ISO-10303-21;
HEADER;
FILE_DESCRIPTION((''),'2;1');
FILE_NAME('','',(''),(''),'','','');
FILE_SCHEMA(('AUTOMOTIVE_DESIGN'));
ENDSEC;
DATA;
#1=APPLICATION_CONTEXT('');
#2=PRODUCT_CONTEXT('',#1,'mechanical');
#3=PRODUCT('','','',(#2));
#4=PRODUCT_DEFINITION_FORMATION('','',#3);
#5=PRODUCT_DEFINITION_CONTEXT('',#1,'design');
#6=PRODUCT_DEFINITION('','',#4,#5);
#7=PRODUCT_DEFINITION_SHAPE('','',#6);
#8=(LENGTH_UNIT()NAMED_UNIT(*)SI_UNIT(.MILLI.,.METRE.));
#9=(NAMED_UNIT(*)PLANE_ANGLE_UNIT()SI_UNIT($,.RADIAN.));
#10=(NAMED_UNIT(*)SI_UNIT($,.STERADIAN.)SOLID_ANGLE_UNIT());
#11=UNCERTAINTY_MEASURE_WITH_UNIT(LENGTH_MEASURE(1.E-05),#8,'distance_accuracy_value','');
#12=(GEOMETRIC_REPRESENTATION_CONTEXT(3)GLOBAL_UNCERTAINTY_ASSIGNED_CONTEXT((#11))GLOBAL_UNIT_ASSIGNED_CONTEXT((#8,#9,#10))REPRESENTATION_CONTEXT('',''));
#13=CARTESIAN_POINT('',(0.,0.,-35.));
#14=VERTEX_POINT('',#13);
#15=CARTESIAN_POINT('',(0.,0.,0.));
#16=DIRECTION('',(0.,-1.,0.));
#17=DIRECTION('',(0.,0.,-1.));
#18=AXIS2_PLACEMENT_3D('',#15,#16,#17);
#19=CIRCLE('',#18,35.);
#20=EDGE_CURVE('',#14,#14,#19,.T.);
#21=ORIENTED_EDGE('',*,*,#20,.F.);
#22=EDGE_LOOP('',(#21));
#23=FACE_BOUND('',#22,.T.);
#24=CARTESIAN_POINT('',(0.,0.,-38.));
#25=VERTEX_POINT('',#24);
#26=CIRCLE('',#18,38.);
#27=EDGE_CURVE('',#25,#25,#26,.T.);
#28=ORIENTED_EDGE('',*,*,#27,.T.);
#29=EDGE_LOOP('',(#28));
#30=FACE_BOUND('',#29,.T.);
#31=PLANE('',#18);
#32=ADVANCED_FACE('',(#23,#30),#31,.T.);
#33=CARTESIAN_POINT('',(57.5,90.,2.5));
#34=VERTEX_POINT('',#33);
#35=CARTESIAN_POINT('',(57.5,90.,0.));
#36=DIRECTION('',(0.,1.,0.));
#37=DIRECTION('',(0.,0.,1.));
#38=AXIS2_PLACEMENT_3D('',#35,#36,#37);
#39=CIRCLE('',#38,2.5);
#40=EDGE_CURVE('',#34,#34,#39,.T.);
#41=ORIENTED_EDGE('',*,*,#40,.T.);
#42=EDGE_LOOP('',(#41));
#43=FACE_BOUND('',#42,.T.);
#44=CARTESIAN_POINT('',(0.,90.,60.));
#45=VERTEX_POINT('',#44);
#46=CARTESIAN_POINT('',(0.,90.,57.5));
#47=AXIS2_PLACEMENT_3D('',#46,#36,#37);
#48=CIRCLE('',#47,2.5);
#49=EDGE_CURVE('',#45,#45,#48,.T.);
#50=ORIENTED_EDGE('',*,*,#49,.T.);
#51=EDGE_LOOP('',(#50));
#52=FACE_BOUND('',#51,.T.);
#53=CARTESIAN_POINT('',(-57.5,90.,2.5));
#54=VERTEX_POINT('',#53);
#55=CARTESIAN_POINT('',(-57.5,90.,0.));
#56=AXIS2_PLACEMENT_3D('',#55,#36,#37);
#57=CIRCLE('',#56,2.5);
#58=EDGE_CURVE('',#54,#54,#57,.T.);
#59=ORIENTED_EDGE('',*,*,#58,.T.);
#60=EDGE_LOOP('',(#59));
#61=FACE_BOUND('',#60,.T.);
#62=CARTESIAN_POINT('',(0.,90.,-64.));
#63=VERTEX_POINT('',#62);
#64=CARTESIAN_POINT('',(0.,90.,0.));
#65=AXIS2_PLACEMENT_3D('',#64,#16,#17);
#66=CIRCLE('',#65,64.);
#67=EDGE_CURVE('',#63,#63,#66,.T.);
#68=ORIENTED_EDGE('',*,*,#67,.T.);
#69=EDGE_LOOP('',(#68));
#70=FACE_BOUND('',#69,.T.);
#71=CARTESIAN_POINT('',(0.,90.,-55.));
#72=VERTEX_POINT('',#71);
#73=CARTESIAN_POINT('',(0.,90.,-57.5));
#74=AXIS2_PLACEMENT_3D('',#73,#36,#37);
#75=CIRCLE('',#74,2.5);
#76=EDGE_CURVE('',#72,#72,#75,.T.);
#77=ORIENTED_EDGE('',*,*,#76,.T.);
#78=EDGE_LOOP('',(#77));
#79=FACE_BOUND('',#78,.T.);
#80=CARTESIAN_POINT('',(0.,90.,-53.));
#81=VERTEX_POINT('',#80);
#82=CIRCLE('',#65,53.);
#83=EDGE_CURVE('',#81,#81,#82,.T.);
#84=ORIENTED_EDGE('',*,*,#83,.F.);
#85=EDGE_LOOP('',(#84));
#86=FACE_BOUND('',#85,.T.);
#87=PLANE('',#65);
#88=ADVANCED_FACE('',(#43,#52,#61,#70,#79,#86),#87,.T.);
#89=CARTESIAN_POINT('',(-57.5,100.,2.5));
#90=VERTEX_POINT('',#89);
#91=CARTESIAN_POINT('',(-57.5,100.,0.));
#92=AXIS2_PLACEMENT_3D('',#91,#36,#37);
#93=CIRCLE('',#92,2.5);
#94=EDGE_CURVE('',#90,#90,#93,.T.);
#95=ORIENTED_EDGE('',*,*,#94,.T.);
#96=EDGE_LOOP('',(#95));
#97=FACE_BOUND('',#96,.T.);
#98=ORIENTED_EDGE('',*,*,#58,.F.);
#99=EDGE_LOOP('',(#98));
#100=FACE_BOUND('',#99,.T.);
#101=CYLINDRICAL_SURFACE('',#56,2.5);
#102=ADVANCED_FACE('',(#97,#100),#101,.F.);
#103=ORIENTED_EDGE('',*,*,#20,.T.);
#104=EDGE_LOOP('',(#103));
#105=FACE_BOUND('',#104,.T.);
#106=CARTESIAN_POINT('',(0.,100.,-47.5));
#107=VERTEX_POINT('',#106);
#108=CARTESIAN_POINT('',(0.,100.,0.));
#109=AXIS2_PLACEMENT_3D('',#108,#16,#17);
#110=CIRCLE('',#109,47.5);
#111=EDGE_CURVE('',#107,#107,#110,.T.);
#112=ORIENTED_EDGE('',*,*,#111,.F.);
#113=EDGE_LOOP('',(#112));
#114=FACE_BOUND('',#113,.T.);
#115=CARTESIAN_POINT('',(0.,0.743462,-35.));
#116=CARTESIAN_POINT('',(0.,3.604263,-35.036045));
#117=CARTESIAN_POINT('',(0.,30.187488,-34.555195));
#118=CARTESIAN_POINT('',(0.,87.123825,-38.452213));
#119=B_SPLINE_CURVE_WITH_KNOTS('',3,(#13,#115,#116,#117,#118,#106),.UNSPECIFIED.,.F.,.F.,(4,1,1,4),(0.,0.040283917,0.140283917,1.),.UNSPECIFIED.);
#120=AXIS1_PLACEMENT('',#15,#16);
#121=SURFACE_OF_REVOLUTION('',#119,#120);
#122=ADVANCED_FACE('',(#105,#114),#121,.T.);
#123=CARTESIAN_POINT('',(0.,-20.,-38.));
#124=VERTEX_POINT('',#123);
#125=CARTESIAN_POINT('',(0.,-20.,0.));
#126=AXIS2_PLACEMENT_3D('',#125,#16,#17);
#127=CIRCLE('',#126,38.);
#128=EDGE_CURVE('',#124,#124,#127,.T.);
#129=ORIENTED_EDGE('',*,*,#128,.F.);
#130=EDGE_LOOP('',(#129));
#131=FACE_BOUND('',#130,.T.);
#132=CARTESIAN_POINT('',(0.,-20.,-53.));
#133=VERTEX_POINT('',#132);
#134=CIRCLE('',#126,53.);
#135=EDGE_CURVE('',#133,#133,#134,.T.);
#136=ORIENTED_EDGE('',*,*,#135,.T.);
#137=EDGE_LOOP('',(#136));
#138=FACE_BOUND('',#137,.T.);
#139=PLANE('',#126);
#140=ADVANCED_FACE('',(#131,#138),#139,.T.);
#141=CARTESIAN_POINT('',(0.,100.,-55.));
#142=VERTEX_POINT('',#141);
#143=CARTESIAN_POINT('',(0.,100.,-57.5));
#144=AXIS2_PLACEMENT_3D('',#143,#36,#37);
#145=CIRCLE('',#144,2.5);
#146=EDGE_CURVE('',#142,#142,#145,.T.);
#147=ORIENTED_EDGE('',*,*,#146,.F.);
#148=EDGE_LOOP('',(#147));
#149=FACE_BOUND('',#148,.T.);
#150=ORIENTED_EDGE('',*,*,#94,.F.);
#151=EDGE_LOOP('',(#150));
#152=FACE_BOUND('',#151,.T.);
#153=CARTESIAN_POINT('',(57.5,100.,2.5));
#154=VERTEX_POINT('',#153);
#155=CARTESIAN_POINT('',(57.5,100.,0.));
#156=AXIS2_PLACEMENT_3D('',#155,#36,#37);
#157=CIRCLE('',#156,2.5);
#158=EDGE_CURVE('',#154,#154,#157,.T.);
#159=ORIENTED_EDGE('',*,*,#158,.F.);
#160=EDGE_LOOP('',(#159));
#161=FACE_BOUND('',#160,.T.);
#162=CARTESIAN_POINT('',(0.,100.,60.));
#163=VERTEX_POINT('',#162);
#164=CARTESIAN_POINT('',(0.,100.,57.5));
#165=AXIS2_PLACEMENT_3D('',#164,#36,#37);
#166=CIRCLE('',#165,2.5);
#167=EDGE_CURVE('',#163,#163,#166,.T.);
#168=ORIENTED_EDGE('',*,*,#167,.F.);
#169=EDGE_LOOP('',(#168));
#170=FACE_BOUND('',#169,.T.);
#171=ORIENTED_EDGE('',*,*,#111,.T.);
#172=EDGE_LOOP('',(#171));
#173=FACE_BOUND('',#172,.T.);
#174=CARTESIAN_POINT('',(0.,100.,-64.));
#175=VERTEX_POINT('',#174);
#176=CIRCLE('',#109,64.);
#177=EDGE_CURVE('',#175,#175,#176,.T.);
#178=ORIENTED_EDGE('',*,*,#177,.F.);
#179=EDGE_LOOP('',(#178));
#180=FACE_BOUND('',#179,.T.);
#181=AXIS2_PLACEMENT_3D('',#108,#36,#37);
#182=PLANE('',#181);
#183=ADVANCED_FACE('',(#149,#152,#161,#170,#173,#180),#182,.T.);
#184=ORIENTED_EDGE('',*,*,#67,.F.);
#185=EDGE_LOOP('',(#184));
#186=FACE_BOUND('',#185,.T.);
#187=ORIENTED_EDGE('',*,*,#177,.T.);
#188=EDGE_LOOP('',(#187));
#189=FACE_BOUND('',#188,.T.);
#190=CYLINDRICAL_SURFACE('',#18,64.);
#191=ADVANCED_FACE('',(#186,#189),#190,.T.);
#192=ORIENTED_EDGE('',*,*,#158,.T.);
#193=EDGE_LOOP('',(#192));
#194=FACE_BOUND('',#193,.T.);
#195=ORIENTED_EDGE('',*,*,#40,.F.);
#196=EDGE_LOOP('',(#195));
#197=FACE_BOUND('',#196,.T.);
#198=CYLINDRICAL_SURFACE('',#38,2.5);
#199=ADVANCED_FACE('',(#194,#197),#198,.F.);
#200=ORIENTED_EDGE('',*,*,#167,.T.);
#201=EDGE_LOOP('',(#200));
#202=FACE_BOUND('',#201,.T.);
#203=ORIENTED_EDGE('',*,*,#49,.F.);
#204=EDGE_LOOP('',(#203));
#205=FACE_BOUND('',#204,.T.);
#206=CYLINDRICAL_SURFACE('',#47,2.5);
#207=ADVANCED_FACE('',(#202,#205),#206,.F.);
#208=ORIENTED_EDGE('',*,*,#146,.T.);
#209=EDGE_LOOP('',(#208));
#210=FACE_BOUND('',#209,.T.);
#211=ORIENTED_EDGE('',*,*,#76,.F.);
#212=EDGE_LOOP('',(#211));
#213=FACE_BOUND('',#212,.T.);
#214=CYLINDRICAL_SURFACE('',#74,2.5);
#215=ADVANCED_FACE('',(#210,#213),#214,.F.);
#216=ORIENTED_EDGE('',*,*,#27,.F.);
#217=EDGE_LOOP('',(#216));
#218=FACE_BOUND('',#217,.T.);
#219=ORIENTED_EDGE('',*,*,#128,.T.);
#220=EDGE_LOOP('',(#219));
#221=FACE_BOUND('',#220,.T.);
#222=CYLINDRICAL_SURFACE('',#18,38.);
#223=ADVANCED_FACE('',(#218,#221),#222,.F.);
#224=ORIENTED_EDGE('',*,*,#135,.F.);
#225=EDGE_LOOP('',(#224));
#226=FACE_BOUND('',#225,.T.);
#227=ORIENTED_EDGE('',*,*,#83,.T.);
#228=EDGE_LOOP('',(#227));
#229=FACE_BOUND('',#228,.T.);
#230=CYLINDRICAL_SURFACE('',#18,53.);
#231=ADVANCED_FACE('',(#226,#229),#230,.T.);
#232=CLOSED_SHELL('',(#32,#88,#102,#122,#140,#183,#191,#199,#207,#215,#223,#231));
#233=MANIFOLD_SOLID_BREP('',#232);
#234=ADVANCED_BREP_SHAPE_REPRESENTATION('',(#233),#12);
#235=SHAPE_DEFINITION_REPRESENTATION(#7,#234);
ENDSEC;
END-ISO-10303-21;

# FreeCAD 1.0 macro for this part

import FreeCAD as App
import Part
import Sketcher
Q = App.Units.Quantity

doc = App.newDocument("Part")
body = doc.addObject("PartDesign::Body", "Body")

sketch1 = body.newObject("Sketcher::SketchObject", "Sketch")
sketch1.AttachmentSupport = (doc.getObject("YZ_Plane"), [""])
sketch1.MapMode = "FlatFace"
sketch1.addGeometry([
    Part.LineSegment(App.Vector(0, -35, 0), App.Vector(0, -38, 0)),
    Part.LineSegment(App.Vector(0, -38, 0), App.Vector(-20, -38, 0)),
    Part.LineSegment(App.Vector(-20, -38, 0), App.Vector(-20, -53, 0)),
    Part.LineSegment(App.Vector(-20, -53, 0), App.Vector(90, -53, 0)),
    Part.LineSegment(App.Vector(90, -53, 0), App.Vector(90, -64, 0)),
    Part.LineSegment(App.Vector(90, -64, 0), App.Vector(100, -64, 0)),
    Part.LineSegment(App.Vector(100, -64, 0), App.Vector(100, -47.5, 0)),
    Part.BSplineCurve([App.Vector(0, -35, 0), App.Vector(0.743462, -35, 0), App.Vector(3.604263, -35.036045, 0), App.Vector(30.187488, -34.555195, 0), App.Vector(87.123825, -38.452213, 0), App.Vector(100, -47.5, 0)], [4, 1, 1, 4], [0, 0.040283917, 0.140283917, 1], False, 3, [1, 1, 1, 1, 1, 1], False),
], False)
sketch1.addConstraint([
    Sketcher.Constraint("Block", 7),
    Sketcher.Constraint("Coincident", 0, 2, 1, 1),
    Sketcher.Constraint("Coincident", 1, 2, 2, 1),
    Sketcher.Constraint("Coincident", 2, 2, 3, 1),
    Sketcher.Constraint("Coincident", 3, 2, 4, 1),
    Sketcher.Constraint("Coincident", 4, 2, 5, 1),
    Sketcher.Constraint("Coincident", 5, 2, 6, 1),
    Sketcher.Constraint("Coincident", 6, 2, 7, 2),
    Sketcher.Constraint("Coincident", 7, 1, 0, 1),
    Sketcher.Constraint("Vertical", 0),
    Sketcher.Constraint("Horizontal", 1),
    Sketcher.Constraint("Vertical", 2),
    Sketcher.Constraint("Horizontal", 3),
    Sketcher.Constraint("Vertical", 4),
    Sketcher.Constraint("Horizontal", 5),
    Sketcher.Constraint("Vertical", 6),
    Sketcher.Constraint("DistanceX", 1, 2, 1, 1, Q("20 mm")),
    Sketcher.Constraint("DistanceX", 3, 1, 3, 2, Q("110 mm")),
    Sketcher.Constraint("DistanceY", 0, 2, 0, 1, Q("3 mm")),
    Sketcher.Constraint("DistanceY", 2, 2, 2, 1, Q("15 mm")),
    Sketcher.Constraint("DistanceY", 4, 2, 4, 1, Q("11 mm")),
])
revolution = body.newObject("PartDesign::Revolution", "Revolution")
revolution.Profile = sketch1
revolution.ReferenceAxis = (sketch1, ["H_Axis"])
revolution.Angle = 360

sketch2 = body.newObject("Sketcher::SketchObject", "Sketch001")
sketch2.AttachmentSupport = (doc.getObject("XZ_Plane"), [""])
sketch2.MapMode = "FlatFace"
sketch2.AttachmentOffset = App.Placement(App.Vector(0, 0, -100), App.Rotation())
sketch2.addGeometry([
    Part.Circle(App.Vector(0, -57.5, 0), App.Vector(0, 0, 1), 2.5),
    Part.Circle(App.Vector(57.5, 0, 0), App.Vector(0, 0, 1), 2.5),
    Part.Circle(App.Vector(0, 57.5, 0), App.Vector(0, 0, 1), 2.5),
    Part.Circle(App.Vector(-57.5, 0, 0), App.Vector(0, 0, 1), 2.5),
], False)
sketch2.addConstraint([
    Sketcher.Constraint("Equal", 0, 1),
    Sketcher.Constraint("Equal", 1, 2),
    Sketcher.Constraint("Equal", 2, 3),
    Sketcher.Constraint("Symmetric", 0, 3, 2, 3, -1, 1),
    Sketcher.Constraint("Symmetric", 1, 3, 3, 3, -1, 1),
    Sketcher.Constraint("PointOnObject", 0, 3, -2),
    Sketcher.Constraint("PointOnObject", 1, 3, -1),
    Sketcher.Constraint("Diameter", 0, Q("5 mm")),
    Sketcher.Constraint("DistanceY", 0, 3, 2, 3, Q("115 mm")),
    Sketcher.Constraint("DistanceX", 3, 3, 1, 3, Q("115 mm")),
])
pocket1 = body.newObject("PartDesign::Pocket", "Pocket")
pocket1.Profile = sketch2
pocket1.Length = 10
pocket1.Reversed = True

doc.recompute()
